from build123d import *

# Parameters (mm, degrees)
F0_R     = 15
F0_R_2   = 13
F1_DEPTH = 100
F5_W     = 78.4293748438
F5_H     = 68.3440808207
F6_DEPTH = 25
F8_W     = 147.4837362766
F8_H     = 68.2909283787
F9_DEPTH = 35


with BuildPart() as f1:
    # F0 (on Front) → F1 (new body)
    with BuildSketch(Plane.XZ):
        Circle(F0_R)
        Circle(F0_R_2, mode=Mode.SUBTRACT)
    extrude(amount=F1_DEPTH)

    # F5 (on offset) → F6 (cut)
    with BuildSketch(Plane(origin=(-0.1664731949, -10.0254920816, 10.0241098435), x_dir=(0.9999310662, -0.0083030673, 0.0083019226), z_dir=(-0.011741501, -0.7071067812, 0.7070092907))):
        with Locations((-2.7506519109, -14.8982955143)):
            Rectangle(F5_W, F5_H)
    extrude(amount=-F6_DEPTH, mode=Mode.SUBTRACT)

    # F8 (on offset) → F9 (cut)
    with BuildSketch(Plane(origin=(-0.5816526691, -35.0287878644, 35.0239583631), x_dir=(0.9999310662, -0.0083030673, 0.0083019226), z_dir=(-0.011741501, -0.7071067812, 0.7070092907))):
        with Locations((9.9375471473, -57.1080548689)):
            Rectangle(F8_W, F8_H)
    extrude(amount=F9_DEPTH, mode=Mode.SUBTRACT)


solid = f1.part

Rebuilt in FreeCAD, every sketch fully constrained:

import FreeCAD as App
import Part
import Sketcher

V = App.Vector
Q = App.Units.Quantity


def add_polygon(sketch, points):
    """Adds a closed chain of lines whose ends are joined by coincident constraints."""
    first, n = sketch.GeometryCount, len(points)
    for a, b in zip(points, points[1:] + points[:1]):
        sketch.addGeometry(Part.LineSegment(App.Vector(*a, 0), App.Vector(*b, 0)), False)
    for i in range(n):
        sketch.addConstraint(Sketcher.Constraint("Coincident", first + i, 2, first + (i + 1) % n, 1))

doc = App.newDocument("Part")
body = doc.addObject("PartDesign::Body", "Body")

# Sketch on XZ plane
sketch1 = body.newObject("Sketcher::SketchObject", "Sketch")
sketch1.AttachmentSupport = (doc.getObject("XZ_Plane"), [""])
sketch1.MapMode = "FlatFace"
sketch1.addGeometry([
    Part.Circle(V(0, 0, 0), V(0, 0, 1), 15),
    Part.Circle(V(0, 0, 0), V(0, 0, 1), 13),
], False)
sketch1.addConstraint([
    Sketcher.Constraint("Coincident", 0, 3, -1, 1),
    Sketcher.Constraint("Coincident", 1, 3, -1, 1),
    Sketcher.Constraint("Diameter", 0, Q("30 mm")),
    Sketcher.Constraint("Diameter", 1, Q("26 mm")),
])
pad1 = body.newObject("PartDesign::Pad", "Pad")
pad1.Profile = sketch1
pad1.Length = 100

# Sketch on an angled plane
sketch2 = body.newObject("Sketcher::SketchObject", "Sketch001")
sketch2.Placement = App.Placement(V(-0.166473, -10.025492, 10.02411), App.Rotation(V(0.999931066, -0.008303067, 0.008301923), V(-0.000000001, 0.707058031, 0.707155528), V(-0.011741501, -0.707106781, 0.707009291), "ZXY"))
add_polygon(sketch2, [(-42, 19), (-42, -49), (36, -49), (36, 19)])  # lines 0-3
sketch2.addConstraint([
    Sketcher.Constraint("Vertical", 0),
    Sketcher.Constraint("Horizontal", 1),
    Sketcher.Constraint("Vertical", 2),
    Sketcher.Constraint("Horizontal", 3),
    Sketcher.Constraint("DistanceY", 0, 2, 0, 1, Q("68.344081 mm")),
    Sketcher.Constraint("DistanceX", 1, 1, 1, 2, Q("78.429375 mm")),
    Sketcher.Constraint("DistanceX", 0, 2, -1, 1, Q("41.965339 mm")),
    Sketcher.Constraint("DistanceY", 0, 2, -1, 1, Q("49.070336 mm")),
])
pocket1 = body.newObject("PartDesign::Pocket", "Pocket")
pocket1.Profile = sketch2
pocket1.Length = 25

# Sketch on an angled plane
sketch3 = body.newObject("Sketcher::SketchObject", "Sketch002")
sketch3.Placement = App.Placement(V(-0.581653, -35.028788, 35.023958), App.Rotation(V(0.999931066, -0.008303067, 0.008301923), V(-0.000000001, 0.707058031, 0.707155528), V(-0.011741501, -0.707106781, 0.707009291), "ZXY"))
add_polygon(sketch3, [(-64, -23), (-64, -91), (84, -91), (84, -23)])  # lines 0-3
sketch3.addConstraint([
    Sketcher.Constraint("Vertical", 0),
    Sketcher.Constraint("Horizontal", 1),
    Sketcher.Constraint("Vertical", 2),
    Sketcher.Constraint("Horizontal", 3),
    Sketcher.Constraint("DistanceY", 0, 2, 0, 1, Q("68.290928 mm")),
    Sketcher.Constraint("DistanceX", 1, 1, 1, 2, Q("147.483736 mm")),
    Sketcher.Constraint("DistanceX", 0, 2, -1, 1, Q("63.804321 mm")),
    Sketcher.Constraint("DistanceY", 0, 2, -1, 1, Q("91.253519 mm")),
])
pocket2 = body.newObject("PartDesign::Pocket", "Pocket001")
pocket2.Profile = sketch3
pocket2.Length = 35
pocket2.Reversed = True

doc.recompute()
